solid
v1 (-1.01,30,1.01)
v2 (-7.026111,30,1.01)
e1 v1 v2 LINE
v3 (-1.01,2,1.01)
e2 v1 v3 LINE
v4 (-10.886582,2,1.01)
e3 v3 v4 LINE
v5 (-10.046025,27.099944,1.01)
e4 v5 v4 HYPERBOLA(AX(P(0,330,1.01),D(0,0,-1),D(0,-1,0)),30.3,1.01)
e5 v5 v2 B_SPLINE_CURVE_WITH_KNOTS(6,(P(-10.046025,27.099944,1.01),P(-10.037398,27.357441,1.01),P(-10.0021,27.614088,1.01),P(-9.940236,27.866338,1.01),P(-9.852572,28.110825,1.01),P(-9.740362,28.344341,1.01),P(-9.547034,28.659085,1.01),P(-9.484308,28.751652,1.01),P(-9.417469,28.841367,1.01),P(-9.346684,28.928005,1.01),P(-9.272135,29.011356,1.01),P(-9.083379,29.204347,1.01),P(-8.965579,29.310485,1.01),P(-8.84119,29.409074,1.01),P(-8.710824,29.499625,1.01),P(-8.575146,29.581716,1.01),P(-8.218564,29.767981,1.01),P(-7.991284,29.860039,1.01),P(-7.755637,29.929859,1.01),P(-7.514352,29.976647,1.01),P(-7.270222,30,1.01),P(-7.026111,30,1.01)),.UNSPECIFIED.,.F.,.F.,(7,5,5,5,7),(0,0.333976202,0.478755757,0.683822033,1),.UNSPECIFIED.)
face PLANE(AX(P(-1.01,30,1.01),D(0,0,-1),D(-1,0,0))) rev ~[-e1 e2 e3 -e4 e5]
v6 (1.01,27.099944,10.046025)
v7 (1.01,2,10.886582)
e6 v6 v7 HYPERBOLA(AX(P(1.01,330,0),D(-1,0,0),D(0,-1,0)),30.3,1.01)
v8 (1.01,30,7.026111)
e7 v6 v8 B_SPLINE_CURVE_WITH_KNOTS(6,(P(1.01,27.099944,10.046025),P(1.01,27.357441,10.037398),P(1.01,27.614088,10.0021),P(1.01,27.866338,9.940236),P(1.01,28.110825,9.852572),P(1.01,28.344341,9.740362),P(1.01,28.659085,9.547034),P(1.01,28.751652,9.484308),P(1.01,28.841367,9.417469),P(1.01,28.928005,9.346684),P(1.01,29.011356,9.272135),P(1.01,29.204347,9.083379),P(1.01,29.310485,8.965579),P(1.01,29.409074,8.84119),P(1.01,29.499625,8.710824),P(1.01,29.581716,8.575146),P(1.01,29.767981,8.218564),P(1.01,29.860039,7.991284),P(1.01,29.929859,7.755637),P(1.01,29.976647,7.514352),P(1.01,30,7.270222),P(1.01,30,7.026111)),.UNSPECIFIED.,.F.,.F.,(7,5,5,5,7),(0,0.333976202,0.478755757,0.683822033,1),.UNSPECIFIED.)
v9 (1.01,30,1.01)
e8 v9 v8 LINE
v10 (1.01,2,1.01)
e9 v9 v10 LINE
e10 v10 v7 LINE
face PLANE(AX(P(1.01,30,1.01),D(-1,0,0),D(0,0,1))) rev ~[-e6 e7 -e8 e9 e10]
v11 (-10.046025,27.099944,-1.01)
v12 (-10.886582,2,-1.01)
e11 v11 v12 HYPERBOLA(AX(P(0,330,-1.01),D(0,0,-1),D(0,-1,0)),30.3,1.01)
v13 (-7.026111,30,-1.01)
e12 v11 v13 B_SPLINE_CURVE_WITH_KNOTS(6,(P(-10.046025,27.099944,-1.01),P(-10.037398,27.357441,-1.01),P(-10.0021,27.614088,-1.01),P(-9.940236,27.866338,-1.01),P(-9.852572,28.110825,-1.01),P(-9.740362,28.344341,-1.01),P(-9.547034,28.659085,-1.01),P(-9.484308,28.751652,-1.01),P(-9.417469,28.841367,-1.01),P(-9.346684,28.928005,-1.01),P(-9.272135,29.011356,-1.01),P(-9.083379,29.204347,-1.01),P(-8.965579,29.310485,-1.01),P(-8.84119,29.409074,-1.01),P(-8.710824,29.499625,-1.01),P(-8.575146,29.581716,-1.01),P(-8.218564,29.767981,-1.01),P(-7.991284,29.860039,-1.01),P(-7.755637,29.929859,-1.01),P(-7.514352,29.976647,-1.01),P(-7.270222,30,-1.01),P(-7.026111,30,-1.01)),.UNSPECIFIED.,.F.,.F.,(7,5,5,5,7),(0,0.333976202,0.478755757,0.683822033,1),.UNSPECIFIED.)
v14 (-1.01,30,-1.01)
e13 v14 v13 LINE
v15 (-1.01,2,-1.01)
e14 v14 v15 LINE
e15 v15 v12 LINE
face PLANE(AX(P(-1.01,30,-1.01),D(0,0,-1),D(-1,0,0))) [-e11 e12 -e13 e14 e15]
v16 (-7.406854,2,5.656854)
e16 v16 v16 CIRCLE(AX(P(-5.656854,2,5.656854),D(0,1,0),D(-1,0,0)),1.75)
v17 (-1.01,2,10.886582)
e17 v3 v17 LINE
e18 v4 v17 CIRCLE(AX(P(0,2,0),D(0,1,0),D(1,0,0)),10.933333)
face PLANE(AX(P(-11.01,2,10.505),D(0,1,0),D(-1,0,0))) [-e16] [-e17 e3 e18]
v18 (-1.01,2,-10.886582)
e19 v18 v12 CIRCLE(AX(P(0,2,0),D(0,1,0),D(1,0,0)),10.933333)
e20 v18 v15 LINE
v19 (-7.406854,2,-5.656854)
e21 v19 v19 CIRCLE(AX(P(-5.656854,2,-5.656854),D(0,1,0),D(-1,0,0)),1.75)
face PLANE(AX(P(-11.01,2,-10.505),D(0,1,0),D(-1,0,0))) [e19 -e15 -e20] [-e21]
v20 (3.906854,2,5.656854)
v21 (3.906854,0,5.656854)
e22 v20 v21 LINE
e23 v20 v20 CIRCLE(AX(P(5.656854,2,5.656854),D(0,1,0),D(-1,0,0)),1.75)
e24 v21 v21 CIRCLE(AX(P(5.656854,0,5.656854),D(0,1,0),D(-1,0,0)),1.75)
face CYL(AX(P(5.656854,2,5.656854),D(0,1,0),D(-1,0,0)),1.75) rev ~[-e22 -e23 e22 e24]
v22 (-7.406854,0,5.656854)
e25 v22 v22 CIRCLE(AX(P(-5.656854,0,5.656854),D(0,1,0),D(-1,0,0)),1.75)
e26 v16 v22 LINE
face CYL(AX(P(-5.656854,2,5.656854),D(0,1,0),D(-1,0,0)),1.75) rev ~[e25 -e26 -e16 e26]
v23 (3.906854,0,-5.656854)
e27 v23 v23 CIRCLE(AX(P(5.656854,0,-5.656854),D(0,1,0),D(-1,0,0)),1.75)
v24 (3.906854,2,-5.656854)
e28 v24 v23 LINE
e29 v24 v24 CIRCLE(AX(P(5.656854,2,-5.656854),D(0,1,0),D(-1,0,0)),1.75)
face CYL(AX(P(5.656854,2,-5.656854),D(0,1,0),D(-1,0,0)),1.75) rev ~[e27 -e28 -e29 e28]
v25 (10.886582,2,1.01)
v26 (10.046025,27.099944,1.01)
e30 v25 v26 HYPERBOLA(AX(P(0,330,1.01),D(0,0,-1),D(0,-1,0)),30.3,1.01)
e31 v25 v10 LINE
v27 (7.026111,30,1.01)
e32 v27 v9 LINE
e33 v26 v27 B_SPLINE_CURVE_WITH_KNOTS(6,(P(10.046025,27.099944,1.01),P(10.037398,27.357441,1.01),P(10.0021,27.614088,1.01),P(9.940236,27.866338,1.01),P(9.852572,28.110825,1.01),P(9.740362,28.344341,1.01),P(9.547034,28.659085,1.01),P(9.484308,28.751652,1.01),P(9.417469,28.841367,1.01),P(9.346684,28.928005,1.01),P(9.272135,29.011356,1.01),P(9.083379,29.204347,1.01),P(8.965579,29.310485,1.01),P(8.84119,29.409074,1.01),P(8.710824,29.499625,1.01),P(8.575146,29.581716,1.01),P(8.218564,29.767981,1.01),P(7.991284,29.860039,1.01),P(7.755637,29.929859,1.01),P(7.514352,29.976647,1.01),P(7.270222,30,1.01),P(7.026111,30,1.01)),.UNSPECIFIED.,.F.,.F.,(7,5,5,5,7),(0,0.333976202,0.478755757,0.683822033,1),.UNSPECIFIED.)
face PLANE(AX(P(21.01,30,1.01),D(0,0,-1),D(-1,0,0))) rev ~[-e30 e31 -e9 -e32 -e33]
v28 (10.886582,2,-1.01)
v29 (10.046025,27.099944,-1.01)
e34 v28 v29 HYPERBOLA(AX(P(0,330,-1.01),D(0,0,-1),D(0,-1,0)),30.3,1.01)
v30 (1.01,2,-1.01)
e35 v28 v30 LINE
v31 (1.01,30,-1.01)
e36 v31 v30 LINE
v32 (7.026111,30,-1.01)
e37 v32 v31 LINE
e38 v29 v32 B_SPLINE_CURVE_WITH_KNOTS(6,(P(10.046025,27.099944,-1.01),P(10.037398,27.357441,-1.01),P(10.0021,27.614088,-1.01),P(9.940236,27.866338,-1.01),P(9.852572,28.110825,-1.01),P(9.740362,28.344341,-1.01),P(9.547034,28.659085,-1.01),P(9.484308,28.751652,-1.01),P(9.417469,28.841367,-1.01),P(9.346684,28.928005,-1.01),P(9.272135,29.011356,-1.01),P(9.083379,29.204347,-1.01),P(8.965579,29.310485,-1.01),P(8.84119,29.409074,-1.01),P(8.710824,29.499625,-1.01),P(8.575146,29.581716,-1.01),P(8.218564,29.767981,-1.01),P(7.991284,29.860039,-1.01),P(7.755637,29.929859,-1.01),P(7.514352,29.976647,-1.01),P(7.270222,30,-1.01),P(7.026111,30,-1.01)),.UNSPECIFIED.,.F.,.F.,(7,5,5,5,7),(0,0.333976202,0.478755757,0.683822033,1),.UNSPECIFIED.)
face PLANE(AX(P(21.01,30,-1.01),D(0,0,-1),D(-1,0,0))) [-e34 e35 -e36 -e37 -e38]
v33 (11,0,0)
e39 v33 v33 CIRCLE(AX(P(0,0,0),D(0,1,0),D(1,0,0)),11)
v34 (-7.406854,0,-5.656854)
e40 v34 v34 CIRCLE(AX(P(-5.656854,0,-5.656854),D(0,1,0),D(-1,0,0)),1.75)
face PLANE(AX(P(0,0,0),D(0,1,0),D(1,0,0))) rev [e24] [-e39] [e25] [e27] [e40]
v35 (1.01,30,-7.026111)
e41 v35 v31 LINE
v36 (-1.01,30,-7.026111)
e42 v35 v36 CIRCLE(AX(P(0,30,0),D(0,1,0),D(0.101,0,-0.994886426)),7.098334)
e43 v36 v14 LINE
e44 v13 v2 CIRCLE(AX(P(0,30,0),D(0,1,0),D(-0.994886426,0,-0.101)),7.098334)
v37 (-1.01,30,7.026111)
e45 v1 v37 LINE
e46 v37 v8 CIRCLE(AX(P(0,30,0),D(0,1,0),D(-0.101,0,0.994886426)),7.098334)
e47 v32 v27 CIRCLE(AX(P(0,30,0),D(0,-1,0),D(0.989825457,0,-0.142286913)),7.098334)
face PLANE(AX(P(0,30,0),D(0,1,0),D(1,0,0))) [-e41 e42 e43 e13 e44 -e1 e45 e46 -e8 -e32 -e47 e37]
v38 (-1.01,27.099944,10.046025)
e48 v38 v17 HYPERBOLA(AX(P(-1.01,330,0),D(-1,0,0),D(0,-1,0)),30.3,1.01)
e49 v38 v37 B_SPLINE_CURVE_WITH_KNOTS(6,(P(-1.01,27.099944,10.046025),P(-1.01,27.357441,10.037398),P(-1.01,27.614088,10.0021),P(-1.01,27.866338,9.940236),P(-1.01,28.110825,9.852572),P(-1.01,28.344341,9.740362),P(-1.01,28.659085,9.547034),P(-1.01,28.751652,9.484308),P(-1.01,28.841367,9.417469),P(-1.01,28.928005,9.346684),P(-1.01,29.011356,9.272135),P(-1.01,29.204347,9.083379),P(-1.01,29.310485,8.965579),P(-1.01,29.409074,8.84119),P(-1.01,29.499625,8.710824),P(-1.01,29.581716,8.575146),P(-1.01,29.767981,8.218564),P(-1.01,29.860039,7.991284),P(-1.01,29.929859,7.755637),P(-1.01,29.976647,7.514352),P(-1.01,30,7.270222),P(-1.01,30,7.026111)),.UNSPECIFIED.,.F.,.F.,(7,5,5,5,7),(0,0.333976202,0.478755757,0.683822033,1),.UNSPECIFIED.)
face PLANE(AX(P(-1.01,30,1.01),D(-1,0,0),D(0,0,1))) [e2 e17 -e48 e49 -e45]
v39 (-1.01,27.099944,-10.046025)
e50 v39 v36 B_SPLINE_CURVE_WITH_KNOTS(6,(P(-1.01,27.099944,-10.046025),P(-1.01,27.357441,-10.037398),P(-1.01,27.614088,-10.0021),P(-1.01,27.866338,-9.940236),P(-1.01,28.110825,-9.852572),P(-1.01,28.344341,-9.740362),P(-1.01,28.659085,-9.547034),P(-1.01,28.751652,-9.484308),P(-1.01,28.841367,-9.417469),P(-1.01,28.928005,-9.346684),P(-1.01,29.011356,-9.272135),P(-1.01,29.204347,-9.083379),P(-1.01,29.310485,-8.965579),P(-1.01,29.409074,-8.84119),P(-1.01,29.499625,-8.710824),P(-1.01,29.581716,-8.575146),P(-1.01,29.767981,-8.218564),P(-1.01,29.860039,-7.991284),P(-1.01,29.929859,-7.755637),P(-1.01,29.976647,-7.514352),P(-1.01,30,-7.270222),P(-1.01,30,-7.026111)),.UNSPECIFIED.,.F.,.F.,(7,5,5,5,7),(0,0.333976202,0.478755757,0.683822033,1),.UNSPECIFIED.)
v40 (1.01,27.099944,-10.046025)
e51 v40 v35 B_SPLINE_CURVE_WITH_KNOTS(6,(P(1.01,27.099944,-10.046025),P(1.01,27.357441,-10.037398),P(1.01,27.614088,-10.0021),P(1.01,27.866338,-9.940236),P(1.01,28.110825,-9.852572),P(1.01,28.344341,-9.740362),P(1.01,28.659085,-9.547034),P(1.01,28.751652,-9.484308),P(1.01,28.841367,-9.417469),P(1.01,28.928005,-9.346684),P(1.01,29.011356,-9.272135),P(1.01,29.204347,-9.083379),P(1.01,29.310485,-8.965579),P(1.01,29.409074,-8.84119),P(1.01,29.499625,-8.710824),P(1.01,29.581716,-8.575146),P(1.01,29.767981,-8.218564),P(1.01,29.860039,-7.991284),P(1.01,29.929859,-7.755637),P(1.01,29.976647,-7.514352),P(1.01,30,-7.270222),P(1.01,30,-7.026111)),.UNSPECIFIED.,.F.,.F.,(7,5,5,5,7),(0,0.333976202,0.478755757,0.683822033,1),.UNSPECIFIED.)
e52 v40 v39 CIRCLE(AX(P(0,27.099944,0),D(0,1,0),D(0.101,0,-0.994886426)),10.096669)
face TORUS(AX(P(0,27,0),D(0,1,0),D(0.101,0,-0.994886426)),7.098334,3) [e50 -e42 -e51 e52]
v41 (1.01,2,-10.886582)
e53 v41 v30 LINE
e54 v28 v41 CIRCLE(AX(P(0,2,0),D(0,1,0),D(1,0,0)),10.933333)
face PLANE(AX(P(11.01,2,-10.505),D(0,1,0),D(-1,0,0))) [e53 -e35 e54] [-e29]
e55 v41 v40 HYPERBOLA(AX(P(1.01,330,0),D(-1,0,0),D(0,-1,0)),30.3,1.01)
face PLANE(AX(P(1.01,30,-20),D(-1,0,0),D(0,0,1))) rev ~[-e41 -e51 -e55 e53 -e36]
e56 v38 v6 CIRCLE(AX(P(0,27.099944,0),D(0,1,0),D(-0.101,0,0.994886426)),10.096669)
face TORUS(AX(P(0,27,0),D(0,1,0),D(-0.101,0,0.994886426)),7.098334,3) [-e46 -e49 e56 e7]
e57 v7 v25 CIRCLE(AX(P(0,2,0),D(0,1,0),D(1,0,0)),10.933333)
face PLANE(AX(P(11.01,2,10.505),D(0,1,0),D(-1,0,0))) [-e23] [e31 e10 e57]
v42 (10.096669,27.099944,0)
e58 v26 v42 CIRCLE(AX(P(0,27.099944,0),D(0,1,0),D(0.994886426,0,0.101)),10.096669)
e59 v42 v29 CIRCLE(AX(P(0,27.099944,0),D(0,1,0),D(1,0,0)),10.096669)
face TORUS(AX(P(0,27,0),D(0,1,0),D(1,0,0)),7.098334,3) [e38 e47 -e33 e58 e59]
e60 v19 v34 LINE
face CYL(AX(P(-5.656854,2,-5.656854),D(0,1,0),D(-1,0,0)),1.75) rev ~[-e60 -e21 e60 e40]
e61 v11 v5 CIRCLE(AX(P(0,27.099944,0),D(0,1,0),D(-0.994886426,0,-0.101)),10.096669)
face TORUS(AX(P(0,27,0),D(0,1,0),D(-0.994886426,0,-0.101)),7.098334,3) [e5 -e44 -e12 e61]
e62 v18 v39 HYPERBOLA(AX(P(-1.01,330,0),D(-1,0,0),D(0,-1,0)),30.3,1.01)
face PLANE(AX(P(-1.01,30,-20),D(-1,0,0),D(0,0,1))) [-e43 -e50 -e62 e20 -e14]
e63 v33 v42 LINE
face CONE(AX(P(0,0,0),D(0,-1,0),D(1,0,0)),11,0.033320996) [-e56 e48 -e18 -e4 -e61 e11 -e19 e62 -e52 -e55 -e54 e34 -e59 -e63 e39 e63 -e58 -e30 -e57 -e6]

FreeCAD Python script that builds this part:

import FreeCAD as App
import Part
import Sketcher

V = App.Vector


def edges_at(feature, points):
    """Names of the edges that pass closest to the given points."""
    edges = feature.Shape.Edges
    near = lambda p: min(range(len(edges)), key=lambda i: edges[i].distToShape(Part.Vertex(*p))[0])
    return sorted({f"Edge{near(p) + 1}" for p in points})

doc = App.newDocument("Part")
params = doc.addObject("Spreadsheet::Sheet", "Params")
for row, (alias, value) in enumerate([
    ("sketch1_width", "11 mm"),
    ("sketch1_width2", "10 mm"),
    ("sketch1_height", "30 mm"),
    ("revolution_angle", "360 deg"),
    ("sketch2_width", "20 mm"),
    ("sketch2_height", "18.99 mm"),
    ("pocket1_length", "28 mm"),
    ("fillet_radius", "3 mm"),
    ("sketch3_diameter", "3.5 mm"),
    ("pocket2_length", "25 mm"),
], start=1):
    params.set(f"A{row}", alias)
    params.set(f"B{row}", "=" + value)
    params.setAlias(f"B{row}", alias)

body = doc.addObject("PartDesign::Body", "Body")

# Sketch on XY plane
sketch1 = body.newObject("Sketcher::SketchObject", "Sketch")
sketch1.AttachmentSupport = (doc.getObject("XY_Plane"), [""])
sketch1.MapMode = "FlatFace"
sketch1.addGeometry([
    Part.LineSegment(V(0, 30, 0), V(0, 0, 0)),
    Part.LineSegment(V(0, 0, 0), V(11, 0, 0)),
    Part.LineSegment(V(11, 0, 0), V(10, 30, 0)),
    Part.LineSegment(V(10, 30, 0), V(0, 30, 0)),
], False)
sketch1.addConstraint([
    Sketcher.Constraint("Coincident", 0, 2, 1, 1),
    Sketcher.Constraint("Coincident", 1, 2, 2, 1),
    Sketcher.Constraint("Coincident", 2, 2, 3, 1),
    Sketcher.Constraint("Coincident", 3, 2, 0, 1),
    Sketcher.Constraint("Vertical", 0),
    Sketcher.Constraint("Horizontal", 1),
    Sketcher.Constraint("Horizontal", 3),
    Sketcher.Constraint("Coincident", 0, 2, -1, 1),
    Sketcher.Constraint("DistanceX", 1, 1, 1, 2, 11.0),
    Sketcher.Constraint("DistanceX", 3, 2, 3, 1, 10.0),
    Sketcher.Constraint("DistanceY", 0, 2, 0, 1, 30.0),
])
sketch1.setExpression("Constraints[8]", "Params.sketch1_width")
sketch1.setExpression("Constraints[9]", "Params.sketch1_width2")
sketch1.setExpression("Constraints[10]", "Params.sketch1_height")
revolution = body.newObject("PartDesign::Revolution", "Revolution")
revolution.Profile = sketch1
revolution.ReferenceAxis = (sketch1, ["V_Axis"])
revolution.setExpression("Angle", "Params.revolution_angle")

# Sketch on XZ plane
sketch2 = body.newObject("Sketcher::SketchObject", "Sketch001")
sketch2.AttachmentSupport = (doc.getObject("XZ_Plane"), [""])
sketch2.MapMode = "FlatFace"
sketch2.AttachmentOffset = App.Placement(V(0, 0, -30), App.Rotation())
sketch2.addGeometry([
    Part.LineSegment(V(-1, 20, 0), V(-1, 1, 0)),  # 0
    Part.LineSegment(V(-1, 1, 0), V(-21, 1, 0)),  # 1
    Part.LineSegment(V(-21, 1, 0), V(-21, 20, 0)),  # 2
    Part.LineSegment(V(-21, 20, 0), V(-1, 20, 0)),  # 3
    Part.LineSegment(V(21, 20, 0), V(21, 1, 0)),  # 4
    Part.LineSegment(V(21, 1, 0), V(1, 1, 0)),  # 5
    Part.LineSegment(V(1, 1, 0), V(1, 20, 0)),  # 6
    Part.LineSegment(V(1, 20, 0), V(21, 20, 0)),  # 7
    Part.LineSegment(V(-1, -1, 0), V(-1, -20, 0)),  # 8
    Part.LineSegment(V(-1, -20, 0), V(-21, -20, 0)),  # 9
    Part.LineSegment(V(-21, -20, 0), V(-21, -1, 0)),  # 10
    Part.LineSegment(V(-21, -1, 0), V(-1, -1, 0)),  # 11
    Part.LineSegment(V(21, -1, 0), V(21, -20, 0)),  # 12
    Part.LineSegment(V(21, -20, 0), V(1, -20, 0)),  # 13
    Part.LineSegment(V(1, -20, 0), V(1, -1, 0)),  # 14
    Part.LineSegment(V(1, -1, 0), V(21, -1, 0)),  # 15
], False)
sketch2.addConstraint([
    Sketcher.Constraint("Coincident", 0, 2, 1, 1),
    Sketcher.Constraint("Coincident", 1, 2, 2, 1),
    Sketcher.Constraint("Coincident", 2, 2, 3, 1),
    Sketcher.Constraint("Coincident", 3, 2, 0, 1),
    Sketcher.Constraint("Coincident", 4, 2, 5, 1),
    Sketcher.Constraint("Coincident", 5, 2, 6, 1),
    Sketcher.Constraint("Coincident", 6, 2, 7, 1),
    Sketcher.Constraint("Coincident", 7, 2, 4, 1),
    Sketcher.Constraint("Coincident", 8, 2, 9, 1),
    Sketcher.Constraint("Coincident", 9, 2, 10, 1),
    Sketcher.Constraint("Coincident", 10, 2, 11, 1),
    Sketcher.Constraint("Coincident", 11, 2, 8, 1),
    Sketcher.Constraint("Coincident", 12, 2, 13, 1),
    Sketcher.Constraint("Coincident", 13, 2, 14, 1),
    Sketcher.Constraint("Coincident", 14, 2, 15, 1),
    Sketcher.Constraint("Coincident", 15, 2, 12, 1),
    Sketcher.Constraint("Vertical", 0),
    Sketcher.Constraint("Horizontal", 1),
    Sketcher.Constraint("Vertical", 2),
    Sketcher.Constraint("Horizontal", 3),
    Sketcher.Constraint("Vertical", 4),
    Sketcher.Constraint("Horizontal", 5),
    Sketcher.Constraint("Vertical", 6),
    Sketcher.Constraint("Horizontal", 7),
    Sketcher.Constraint("Vertical", 8),
    Sketcher.Constraint("Horizontal", 9),
    Sketcher.Constraint("Vertical", 10),
    Sketcher.Constraint("Horizontal", 11),
    Sketcher.Constraint("Vertical", 12),
    Sketcher.Constraint("Horizontal", 13),
    Sketcher.Constraint("Vertical", 14),
    Sketcher.Constraint("Horizontal", 15),
    Sketcher.Constraint("Symmetric", 6, 2, 8, 2, -1, 1),
    Sketcher.Constraint("Symmetric", 4, 2, 10, 2, -1, 1),
    Sketcher.Constraint("Symmetric", 2, 2, 12, 2, -1, 1),
    Sketcher.Constraint("Symmetric", 0, 2, 14, 2, -1, 1),
    Sketcher.Constraint("Symmetric", 1, 2, 4, 2, -2),
    Sketcher.Constraint("Symmetric", 3, 2, 6, 2, -2),
    Sketcher.Constraint("DistanceX", 1, 2, 1, 1, 20.0),
    Sketcher.Constraint("DistanceY", -1, 1, 2, 2, 20.0),
    Sketcher.Constraint("DistanceY", 0, 2, 0, 1, 18.99),
    Sketcher.Constraint("DistanceX", 0, 2, -1, 1, 1.01),
])
sketch2.setExpression("Constraints[38]", "Params.sketch2_width")
sketch2.setExpression("Constraints[40]", "Params.sketch2_height")
pocket1 = body.newObject("PartDesign::Pocket", "Pocket")
pocket1.Profile = sketch2
pocket1.setExpression("Length", "Params.pocket1_length")
pocket1.Reversed = True
doc.recompute()

fillet = body.newObject("PartDesign::Fillet", "Fillet")
fillet.Base = (pocket1, edges_at(pocket1, [
    (9.987, 30, 0.506),
    (0, 30, 10),
    (-10, 30, 0),
    (0, 30, -10),
]))
fillet.setExpression("Radius", "Params.fillet_radius")

# Sketch on XZ plane
sketch3 = body.newObject("Sketcher::SketchObject", "Sketch002")
sketch3.AttachmentSupport = (doc.getObject("XZ_Plane"), [""])
sketch3.MapMode = "FlatFace"
sketch3.AttachmentOffset = App.Placement(V(0, 0, -2), App.Rotation())
sketch3.addGeometry([
    Part.Circle(V(5.7, 5.7, 0), V(0, 0, 1), 1.8),
    Part.Circle(V(-5.7, -5.7, 0), V(0, 0, 1), 1.8),
    Part.Circle(V(5.7, -5.7, 0), V(0, 0, 1), 1.8),
    Part.Circle(V(-5.7, 5.7, 0), V(0, 0, 1), 1.8),
], False)
sketch3.addConstraint([
    Sketcher.Constraint("Equal", 0, 1),
    Sketcher.Constraint("Equal", 1, 2),
    Sketcher.Constraint("Equal", 2, 3),
    Sketcher.Constraint("Symmetric", 0, 3, 1, 3, -1, 1),
    Sketcher.Constraint("Symmetric", 2, 3, 3, 3, -1, 1),
    Sketcher.Constraint("Symmetric", 1, 3, 2, 3, -2),
    Sketcher.Constraint("Diameter", 0, 3.5),
    Sketcher.Constraint("DistanceX", 1, 3, 0, 3, 11.313709),
    Sketcher.Constraint("DistanceY", 1, 3, 0, 3, 11.313709),
])
sketch3.setExpression("Constraints[6]", "Params.sketch3_diameter")
pocket2 = body.newObject("PartDesign::Pocket", "Pocket001")
pocket2.Profile = sketch3
pocket2.setExpression("Length", "Params.pocket2_length")
pocket2.Reversed = True

doc.recompute()
